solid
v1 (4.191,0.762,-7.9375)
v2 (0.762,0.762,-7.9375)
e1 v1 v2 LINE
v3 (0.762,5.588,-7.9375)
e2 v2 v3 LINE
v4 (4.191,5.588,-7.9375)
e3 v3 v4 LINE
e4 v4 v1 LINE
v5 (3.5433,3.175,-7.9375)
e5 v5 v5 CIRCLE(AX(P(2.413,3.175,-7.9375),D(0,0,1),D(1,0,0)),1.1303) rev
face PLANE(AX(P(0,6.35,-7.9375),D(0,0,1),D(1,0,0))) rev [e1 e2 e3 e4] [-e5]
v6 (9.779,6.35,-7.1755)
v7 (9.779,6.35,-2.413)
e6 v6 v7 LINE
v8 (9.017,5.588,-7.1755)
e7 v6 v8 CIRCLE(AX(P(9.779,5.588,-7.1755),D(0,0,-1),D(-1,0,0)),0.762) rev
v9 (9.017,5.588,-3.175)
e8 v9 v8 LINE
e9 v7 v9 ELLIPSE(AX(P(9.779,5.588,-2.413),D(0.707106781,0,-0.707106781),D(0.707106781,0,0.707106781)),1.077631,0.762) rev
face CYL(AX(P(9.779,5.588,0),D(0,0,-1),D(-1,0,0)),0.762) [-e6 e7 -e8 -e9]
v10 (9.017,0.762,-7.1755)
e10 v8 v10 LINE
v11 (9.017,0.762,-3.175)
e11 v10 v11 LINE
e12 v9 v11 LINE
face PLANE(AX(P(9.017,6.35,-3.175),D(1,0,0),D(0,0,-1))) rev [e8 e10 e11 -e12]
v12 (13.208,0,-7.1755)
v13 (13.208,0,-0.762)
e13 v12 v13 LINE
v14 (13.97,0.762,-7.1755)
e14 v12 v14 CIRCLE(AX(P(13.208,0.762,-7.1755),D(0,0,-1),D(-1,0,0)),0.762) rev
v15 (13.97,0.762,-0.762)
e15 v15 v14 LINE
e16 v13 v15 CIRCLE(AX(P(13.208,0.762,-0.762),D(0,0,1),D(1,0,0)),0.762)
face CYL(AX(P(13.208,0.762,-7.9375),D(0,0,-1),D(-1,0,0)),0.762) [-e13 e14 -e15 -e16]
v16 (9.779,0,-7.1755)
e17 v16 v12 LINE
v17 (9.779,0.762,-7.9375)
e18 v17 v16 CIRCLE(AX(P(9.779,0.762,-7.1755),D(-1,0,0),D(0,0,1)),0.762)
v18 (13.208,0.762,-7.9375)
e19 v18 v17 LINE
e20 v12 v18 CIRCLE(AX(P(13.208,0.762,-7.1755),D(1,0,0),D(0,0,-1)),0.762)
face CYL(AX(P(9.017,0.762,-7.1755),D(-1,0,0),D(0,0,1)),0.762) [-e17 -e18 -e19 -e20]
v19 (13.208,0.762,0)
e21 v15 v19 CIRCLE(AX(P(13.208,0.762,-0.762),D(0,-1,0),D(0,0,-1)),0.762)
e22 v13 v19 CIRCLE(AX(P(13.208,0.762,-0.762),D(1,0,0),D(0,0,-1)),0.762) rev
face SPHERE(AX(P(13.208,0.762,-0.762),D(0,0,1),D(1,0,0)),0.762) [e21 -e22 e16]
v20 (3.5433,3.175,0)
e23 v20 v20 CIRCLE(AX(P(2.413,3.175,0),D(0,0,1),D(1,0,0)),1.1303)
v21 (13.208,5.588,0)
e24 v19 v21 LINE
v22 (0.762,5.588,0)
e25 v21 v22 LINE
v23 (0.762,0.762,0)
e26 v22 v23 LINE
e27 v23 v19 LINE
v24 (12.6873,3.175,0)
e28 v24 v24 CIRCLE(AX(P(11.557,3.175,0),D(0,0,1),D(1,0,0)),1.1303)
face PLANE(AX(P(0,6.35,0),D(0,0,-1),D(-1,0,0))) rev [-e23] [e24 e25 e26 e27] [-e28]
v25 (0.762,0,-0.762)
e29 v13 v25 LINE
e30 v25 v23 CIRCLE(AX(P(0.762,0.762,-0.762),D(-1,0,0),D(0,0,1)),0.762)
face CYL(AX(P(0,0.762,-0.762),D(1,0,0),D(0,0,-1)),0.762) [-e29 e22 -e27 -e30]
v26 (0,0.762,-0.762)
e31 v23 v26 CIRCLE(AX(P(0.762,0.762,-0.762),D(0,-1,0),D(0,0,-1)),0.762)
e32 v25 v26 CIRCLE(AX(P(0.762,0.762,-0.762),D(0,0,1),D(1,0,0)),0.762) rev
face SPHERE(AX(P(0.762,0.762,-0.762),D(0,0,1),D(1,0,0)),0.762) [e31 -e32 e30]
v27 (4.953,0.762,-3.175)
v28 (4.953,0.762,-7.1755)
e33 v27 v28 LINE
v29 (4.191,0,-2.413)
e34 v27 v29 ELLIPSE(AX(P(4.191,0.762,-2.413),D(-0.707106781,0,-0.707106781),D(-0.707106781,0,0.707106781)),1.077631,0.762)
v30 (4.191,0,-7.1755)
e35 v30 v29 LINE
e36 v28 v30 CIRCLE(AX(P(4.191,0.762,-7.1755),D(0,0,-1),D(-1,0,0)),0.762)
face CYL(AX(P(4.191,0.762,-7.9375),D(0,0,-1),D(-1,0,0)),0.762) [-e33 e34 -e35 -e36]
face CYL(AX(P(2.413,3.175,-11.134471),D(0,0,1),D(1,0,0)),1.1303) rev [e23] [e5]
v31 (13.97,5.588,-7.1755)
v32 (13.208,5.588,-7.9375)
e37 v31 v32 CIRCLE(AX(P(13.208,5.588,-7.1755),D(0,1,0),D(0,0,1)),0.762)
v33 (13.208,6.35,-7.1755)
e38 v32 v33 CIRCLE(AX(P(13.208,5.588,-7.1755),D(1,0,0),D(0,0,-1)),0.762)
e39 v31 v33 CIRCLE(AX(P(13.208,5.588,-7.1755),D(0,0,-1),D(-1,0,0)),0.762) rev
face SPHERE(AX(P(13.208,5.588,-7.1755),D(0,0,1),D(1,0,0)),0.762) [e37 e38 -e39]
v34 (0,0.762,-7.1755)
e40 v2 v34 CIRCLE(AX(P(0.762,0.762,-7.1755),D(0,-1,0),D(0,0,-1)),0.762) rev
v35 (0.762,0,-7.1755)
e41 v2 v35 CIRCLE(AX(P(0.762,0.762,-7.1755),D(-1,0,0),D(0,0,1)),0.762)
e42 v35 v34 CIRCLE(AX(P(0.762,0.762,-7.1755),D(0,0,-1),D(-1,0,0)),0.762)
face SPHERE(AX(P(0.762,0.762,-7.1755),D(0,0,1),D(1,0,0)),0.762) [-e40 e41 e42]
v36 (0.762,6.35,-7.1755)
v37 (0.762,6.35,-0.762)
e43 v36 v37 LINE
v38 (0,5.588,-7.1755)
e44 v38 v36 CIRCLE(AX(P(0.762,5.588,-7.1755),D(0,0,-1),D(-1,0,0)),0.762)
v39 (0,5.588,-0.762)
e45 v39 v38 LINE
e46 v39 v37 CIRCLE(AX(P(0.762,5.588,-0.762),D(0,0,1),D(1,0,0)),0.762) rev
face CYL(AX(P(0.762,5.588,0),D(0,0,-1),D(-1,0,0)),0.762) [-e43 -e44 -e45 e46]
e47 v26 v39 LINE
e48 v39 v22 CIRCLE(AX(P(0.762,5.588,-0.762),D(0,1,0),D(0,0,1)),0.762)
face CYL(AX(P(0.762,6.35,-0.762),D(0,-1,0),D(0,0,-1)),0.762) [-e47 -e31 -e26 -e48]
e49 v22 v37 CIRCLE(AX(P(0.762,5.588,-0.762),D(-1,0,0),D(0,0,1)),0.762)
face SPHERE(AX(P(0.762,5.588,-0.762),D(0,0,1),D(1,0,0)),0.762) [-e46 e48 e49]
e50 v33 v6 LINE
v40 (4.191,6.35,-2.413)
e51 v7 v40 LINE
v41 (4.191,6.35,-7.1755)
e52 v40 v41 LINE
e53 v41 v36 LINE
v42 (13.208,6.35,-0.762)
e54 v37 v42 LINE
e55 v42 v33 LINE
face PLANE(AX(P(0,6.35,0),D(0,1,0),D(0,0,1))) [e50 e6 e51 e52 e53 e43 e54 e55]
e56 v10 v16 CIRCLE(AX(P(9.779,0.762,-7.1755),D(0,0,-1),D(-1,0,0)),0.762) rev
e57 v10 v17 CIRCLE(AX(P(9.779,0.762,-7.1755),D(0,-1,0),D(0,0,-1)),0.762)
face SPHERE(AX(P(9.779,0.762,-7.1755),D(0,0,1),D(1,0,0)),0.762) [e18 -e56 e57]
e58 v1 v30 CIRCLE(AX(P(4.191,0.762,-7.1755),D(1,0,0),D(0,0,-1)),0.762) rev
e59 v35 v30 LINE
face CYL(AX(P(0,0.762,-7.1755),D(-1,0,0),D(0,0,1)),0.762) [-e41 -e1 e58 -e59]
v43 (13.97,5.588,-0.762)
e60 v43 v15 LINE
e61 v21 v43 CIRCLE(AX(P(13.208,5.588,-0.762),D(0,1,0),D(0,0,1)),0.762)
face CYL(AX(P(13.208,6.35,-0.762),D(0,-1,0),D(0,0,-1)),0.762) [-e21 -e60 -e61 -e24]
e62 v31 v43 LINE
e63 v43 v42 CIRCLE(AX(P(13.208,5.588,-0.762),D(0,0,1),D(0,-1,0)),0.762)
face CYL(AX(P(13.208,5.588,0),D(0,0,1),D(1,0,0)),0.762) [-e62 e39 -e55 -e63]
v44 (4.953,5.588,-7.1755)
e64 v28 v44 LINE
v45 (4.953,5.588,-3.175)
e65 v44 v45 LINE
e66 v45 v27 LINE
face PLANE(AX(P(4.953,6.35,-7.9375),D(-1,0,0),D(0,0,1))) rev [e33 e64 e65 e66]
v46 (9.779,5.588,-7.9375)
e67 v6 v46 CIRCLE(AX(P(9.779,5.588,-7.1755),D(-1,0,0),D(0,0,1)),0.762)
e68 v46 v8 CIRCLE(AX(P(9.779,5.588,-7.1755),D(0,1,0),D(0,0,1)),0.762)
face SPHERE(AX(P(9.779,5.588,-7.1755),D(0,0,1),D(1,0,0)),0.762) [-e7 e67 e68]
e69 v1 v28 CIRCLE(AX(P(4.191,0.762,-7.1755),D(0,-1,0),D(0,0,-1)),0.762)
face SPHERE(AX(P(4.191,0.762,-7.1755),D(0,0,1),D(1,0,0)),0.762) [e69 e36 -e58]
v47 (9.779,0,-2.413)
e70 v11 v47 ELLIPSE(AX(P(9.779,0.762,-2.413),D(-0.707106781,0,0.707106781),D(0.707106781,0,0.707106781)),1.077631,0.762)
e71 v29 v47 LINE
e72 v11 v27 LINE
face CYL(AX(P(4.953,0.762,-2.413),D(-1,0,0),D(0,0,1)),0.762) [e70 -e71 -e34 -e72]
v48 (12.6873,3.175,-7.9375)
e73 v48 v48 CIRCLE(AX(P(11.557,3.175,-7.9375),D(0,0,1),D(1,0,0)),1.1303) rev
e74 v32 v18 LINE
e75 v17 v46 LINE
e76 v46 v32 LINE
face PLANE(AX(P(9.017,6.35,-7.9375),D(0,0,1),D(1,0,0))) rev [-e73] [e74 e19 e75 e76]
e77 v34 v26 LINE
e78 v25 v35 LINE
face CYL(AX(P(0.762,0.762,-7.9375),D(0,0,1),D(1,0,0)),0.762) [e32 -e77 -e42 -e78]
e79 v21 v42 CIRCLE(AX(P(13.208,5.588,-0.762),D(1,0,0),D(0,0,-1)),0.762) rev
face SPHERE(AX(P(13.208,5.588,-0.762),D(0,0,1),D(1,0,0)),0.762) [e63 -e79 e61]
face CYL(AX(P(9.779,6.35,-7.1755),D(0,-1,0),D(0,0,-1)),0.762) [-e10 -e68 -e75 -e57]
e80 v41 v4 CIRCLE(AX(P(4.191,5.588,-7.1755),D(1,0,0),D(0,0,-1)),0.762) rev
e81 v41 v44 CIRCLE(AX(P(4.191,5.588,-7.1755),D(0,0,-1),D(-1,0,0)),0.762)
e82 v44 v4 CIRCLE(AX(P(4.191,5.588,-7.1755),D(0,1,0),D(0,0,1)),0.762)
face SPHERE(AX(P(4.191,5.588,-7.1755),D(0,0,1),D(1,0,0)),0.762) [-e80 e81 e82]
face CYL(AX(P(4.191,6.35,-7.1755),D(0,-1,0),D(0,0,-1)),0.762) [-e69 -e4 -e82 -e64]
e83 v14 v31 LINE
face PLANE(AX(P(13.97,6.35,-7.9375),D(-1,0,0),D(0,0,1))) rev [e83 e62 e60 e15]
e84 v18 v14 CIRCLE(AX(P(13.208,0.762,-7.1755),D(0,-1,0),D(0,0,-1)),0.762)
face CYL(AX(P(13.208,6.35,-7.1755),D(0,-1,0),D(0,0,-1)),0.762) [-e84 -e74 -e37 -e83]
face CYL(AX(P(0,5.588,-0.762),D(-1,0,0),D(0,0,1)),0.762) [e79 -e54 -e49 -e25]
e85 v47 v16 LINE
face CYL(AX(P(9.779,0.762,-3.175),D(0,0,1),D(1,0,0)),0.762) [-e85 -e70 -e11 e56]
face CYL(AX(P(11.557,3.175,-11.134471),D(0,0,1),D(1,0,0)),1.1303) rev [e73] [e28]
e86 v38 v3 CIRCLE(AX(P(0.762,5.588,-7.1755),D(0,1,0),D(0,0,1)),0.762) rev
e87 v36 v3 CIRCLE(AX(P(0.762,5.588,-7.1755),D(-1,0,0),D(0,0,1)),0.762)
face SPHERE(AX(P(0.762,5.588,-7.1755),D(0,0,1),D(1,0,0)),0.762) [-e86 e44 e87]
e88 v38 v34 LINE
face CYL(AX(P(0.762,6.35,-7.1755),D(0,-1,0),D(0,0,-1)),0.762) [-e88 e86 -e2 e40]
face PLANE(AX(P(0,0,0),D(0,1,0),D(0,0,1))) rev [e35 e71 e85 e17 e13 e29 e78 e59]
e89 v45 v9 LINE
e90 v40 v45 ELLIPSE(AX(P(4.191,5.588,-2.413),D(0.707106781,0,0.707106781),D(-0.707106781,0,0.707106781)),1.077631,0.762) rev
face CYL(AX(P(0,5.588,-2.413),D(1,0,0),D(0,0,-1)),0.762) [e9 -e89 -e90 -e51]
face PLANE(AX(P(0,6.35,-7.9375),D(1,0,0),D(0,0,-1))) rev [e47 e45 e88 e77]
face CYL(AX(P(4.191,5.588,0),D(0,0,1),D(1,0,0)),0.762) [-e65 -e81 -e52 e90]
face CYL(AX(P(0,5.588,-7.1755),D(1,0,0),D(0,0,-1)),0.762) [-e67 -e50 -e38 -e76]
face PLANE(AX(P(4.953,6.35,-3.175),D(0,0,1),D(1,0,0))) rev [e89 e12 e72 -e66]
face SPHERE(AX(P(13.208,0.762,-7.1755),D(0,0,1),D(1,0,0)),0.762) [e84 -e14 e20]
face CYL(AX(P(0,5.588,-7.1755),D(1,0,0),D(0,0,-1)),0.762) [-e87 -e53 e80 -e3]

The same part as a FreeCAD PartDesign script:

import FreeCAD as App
import Part
import Sketcher
Q = App.Units.Quantity


def edges_at(feature, points):
    """Names of the edges that pass closest to the given points."""
    edges = feature.Shape.Edges
    near = lambda p: min(range(len(edges)), key=lambda i: edges[i].distToShape(Part.Vertex(*p))[0])
    return sorted({f"Edge{near(p) + 1}" for p in points})


def add_polygon(sketch, points):
    """Adds a closed chain of lines whose ends are joined by coincident constraints."""
    first, n = sketch.GeometryCount, len(points)
    for a, b in zip(points, points[1:] + points[:1]):
        sketch.addGeometry(Part.LineSegment(App.Vector(*a, 0), App.Vector(*b, 0)), False)
    for i in range(n):
        sketch.addConstraint(Sketcher.Constraint("Coincident", first + i, 2, first + (i + 1) % n, 1))

doc = App.newDocument("Part")
params = doc.addObject("Spreadsheet::Sheet", "Params")
for row, (alias, value) in enumerate([
    ("sketch1_width", "0.55 in"),
    ("sketch1_width2", "0.16 in"),
    ("sketch1_height", "0.3125 in"),
    ("sketch1_height2", "0.1875 in"),
    ("pad1_length", "0.25 in"),
    ("sketch2_diameter", "0.089 in"),
    ("pocket1_length", "0.3125 in"),
    ("fillet_radius", "0.03 in"),
], start=1):
    params.set(f"A{row}", alias)
    params.set(f"B{row}", "=" + value)
    params.setAlias(f"B{row}", alias)

body = doc.addObject("PartDesign::Body", "Body")

sketch1 = body.newObject("Sketcher::SketchObject", "Sketch")
sketch1.AttachmentSupport = (doc.getObject("XZ_Plane"), [""])
sketch1.MapMode = "FlatFace"
add_polygon(sketch1, [(5, -7.9), (0, -7.9), (0, 0), (14, 0), (14, -7.9), (9, -7.9), (9, -3.2), (5, -3.2)])
sketch1.addConstraint(Sketcher.Constraint("Horizontal", 0))
sketch1.addConstraint(Sketcher.Constraint("Vertical", 1))
sketch1.addConstraint(Sketcher.Constraint("Horizontal", 2))
sketch1.addConstraint(Sketcher.Constraint("Vertical", 3))
sketch1.addConstraint(Sketcher.Constraint("Horizontal", 4))
sketch1.addConstraint(Sketcher.Constraint("Vertical", 5))
sketch1.addConstraint(Sketcher.Constraint("Horizontal", 6))
sketch1.addConstraint(Sketcher.Constraint("Vertical", 7))
sketch1.addConstraint(Sketcher.Constraint("Coincident", 1, 2, -1, 1))
sketch1.addConstraint(Sketcher.Constraint("Horizontal", 0, 2, 3, 2))
sketch1.addConstraint(Sketcher.Constraint("Equal", 0, 4))
sketch1.addConstraint(Sketcher.Constraint("DistanceX", 2, 1, 2, 2, Q("0.55 in")))
sketch1.addConstraint(Sketcher.Constraint("DistanceX", 6, 2, 6, 1, Q("0.16 in")))
sketch1.addConstraint(Sketcher.Constraint("DistanceY", 1, 1, 1, 2, Q("0.3125 in")))
sketch1.addConstraint(Sketcher.Constraint("DistanceY", 5, 1, 5, 2, Q("0.1875 in")))
sketch1.setExpression("Constraints[19]", "Params.sketch1_width")
sketch1.setExpression("Constraints[20]", "Params.sketch1_width2")
sketch1.setExpression("Constraints[21]", "Params.sketch1_height")
sketch1.setExpression("Constraints[22]", "Params.sketch1_height2")
pad1 = body.newObject("PartDesign::Pad", "Pad")
pad1.Profile = sketch1
pad1.setExpression("Length", "Params.pad1_length")
pad1.Reversed = True

sketch2 = body.newObject("Sketcher::SketchObject", "Sketch001")
sketch2.AttachmentSupport = (doc.getObject("XY_Plane"), [""])
sketch2.MapMode = "FlatFace"
sketch2.addGeometry(Part.Circle(App.Vector(2.4, 3.2, 0), App.Vector(0, 0, 1), 1.1), False)
sketch2.addGeometry(Part.Circle(App.Vector(11.6, 3.2, 0), App.Vector(0, 0, 1), 1.1), False)
sketch2.addConstraint(Sketcher.Constraint("Equal", 0, 1))
sketch2.addConstraint(Sketcher.Constraint("Horizontal", 0, 3, 1, 3))
sketch2.addConstraint(Sketcher.Constraint("Diameter", 0, Q("0.089 in")))
sketch2.addConstraint(Sketcher.Constraint("DistanceX", 0, 3, 1, 3, Q("0.36 in")))
sketch2.addConstraint(Sketcher.Constraint("DistanceX", -1, 1, 0, 3, Q("0.095 in")))
sketch2.addConstraint(Sketcher.Constraint("DistanceY", -1, 1, 0, 3, Q("0.125 in")))
sketch2.setExpression("Constraints[2]", "Params.sketch2_diameter")
pocket1 = body.newObject("PartDesign::Pocket", "Pocket")
pocket1.Profile = sketch2
pocket1.setExpression("Length", "Params.pocket1_length")
doc.recompute()

fillet = body.newObject("PartDesign::Fillet", "Fillet")
fillet.Base = (pocket1, edges_at(pocket1, [
    (13.97, 6.35, -3.969),
    (6.985, 0, 0),
    (0, 0, -3.969),
    (11.493, 6.35, -7.938),
    (0, 3.175, -7.938),
    (4.953, 3.175, -7.938),
    (9.017, 3.175, -7.938),
    (13.97, 3.175, -7.938),
    (13.97, 3.175, 0),
    (0, 3.175, 0),
    (9.017, 6.35, -5.556),
    (6.985, 6.35, -3.175),
    (4.953, 6.35, -5.556),
    (2.477, 6.35, -7.938),
    (0, 6.35, -3.969),
    (6.985, 6.35, 0),
    (2.477, 0, -7.938),
    (4.953, 0, -5.556),
    (6.985, 0, -3.175),
    (9.017, 0, -5.556),
    (11.493, 0, -7.938),
    (13.97, 0, -3.969),
]))
fillet.setExpression("Radius", "Params.fillet_radius")

doc.recompute()
